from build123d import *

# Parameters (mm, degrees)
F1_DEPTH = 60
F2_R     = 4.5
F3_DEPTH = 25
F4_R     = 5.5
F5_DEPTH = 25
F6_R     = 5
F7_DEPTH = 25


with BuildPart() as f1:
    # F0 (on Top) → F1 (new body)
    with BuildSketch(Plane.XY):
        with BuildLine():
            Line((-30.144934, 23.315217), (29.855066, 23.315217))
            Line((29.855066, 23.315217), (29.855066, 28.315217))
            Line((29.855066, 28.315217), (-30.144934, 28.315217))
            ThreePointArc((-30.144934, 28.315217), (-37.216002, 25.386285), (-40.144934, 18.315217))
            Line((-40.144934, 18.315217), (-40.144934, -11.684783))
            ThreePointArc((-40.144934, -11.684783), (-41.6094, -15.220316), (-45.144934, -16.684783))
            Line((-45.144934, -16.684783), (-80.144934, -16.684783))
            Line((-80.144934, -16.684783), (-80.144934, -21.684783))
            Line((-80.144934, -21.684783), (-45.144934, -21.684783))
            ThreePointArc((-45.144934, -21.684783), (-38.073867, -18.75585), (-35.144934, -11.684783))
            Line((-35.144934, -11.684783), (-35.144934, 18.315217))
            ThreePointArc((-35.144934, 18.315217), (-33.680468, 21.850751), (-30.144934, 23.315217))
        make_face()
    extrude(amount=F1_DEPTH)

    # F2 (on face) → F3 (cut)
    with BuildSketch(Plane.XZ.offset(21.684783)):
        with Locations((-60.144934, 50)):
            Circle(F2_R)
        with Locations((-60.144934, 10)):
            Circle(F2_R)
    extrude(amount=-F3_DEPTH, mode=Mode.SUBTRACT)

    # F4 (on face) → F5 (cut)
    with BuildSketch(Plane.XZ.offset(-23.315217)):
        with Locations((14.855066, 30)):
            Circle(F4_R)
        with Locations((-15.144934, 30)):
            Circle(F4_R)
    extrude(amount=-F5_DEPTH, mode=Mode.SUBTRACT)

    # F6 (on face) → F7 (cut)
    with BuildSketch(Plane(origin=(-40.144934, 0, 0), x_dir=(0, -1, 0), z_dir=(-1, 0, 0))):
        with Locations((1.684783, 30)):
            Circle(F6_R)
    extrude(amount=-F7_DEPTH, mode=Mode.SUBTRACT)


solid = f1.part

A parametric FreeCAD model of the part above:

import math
import FreeCAD as App
import Part
import Sketcher
from FreeCAD import Vector
Q = App.Units.Quantity

doc = App.newDocument("Part")
body = doc.addObject("PartDesign::Body", "Body")

sketch1 = doc.addObject("Sketcher::SketchObject", "Sketch")
body.addObject(sketch1)
sketch1.AttachmentSupport = (doc.XY_Plane, [""])
sketch1.MapMode = "FlatFace"
sketch1.addGeometry([
    Part.LineSegment(Vector(-30.1, 23.3, 0), Vector(29.9, 23.3, 0)),
    Part.LineSegment(Vector(29.9, 23.3, 0), Vector(29.9, 28.3, 0)),
    Part.LineSegment(Vector(29.9, 28.3, 0), Vector(-30.1, 28.3, 0)),
    Part.ArcOfCircle(Part.Circle(Vector(-30.1, 18.3, 0), Vector(0, 0, 1), 10), math.radians(90), math.radians(180)),
    Part.LineSegment(Vector(-40.1, 18.3, 0), Vector(-40.1, -11.7, 0)),
    Part.ArcOfCircle(Part.Circle(Vector(-45.1, -11.7, 0), Vector(0, 0, 1), 5), math.radians(-90), math.radians(0)),
    Part.LineSegment(Vector(-45.1, -16.7, 0), Vector(-80.1, -16.7, 0)),
    Part.LineSegment(Vector(-80.1, -16.7, 0), Vector(-80.1, -21.7, 0)),
    Part.LineSegment(Vector(-80.1, -21.7, 0), Vector(-45.1, -21.7, 0)),
    Part.ArcOfCircle(Part.Circle(Vector(-45.1, -11.7, 0), Vector(0, 0, 1), 10), math.radians(-90), math.radians(0)),
    Part.LineSegment(Vector(-35.1, -11.7, 0), Vector(-35.1, 18.3, 0)),
    Part.ArcOfCircle(Part.Circle(Vector(-30.1, 18.3, 0), Vector(0, 0, 1), 5), math.radians(90), math.radians(180)),
], False)
sketch1.addConstraint([
    Sketcher.Constraint("Coincident", 0, 2, 1, 1),
    Sketcher.Constraint("Coincident", 1, 2, 2, 1),
    Sketcher.Constraint("Tangent", 2, 2, 3, 1),
    Sketcher.Constraint("Tangent", 3, 2, 4, 1),
    Sketcher.Constraint("Tangent", 4, 2, 5, 2),
    Sketcher.Constraint("Tangent", 5, 1, 6, 1),
    Sketcher.Constraint("Coincident", 6, 2, 7, 1),
    Sketcher.Constraint("Coincident", 7, 2, 8, 1),
    Sketcher.Constraint("Tangent", 8, 2, 9, 1),
    Sketcher.Constraint("Tangent", 9, 2, 10, 1),
    Sketcher.Constraint("Tangent", 10, 2, 11, 2),
    Sketcher.Constraint("Tangent", 11, 1, 0, 1),
    Sketcher.Constraint("Horizontal", 0),
    Sketcher.Constraint("Vertical", 1),
    Sketcher.Constraint("Horizontal", 2),
    Sketcher.Constraint("Vertical", 4),
    Sketcher.Constraint("Horizontal", 6),
    Sketcher.Constraint("Vertical", 7),
    Sketcher.Constraint("Horizontal", 8),
    Sketcher.Constraint("Vertical", 10),
    Sketcher.Constraint("Coincident", 9, 3, 5, 3),
    Sketcher.Constraint("Coincident", 11, 3, 3, 3),
    Sketcher.Constraint("Equal", 5, 11),
    Sketcher.Constraint("Radius", 3, Q("9.999999 mm")),
    Sketcher.Constraint("Radius", 5, Q("5.000001 mm")),
    Sketcher.Constraint("DistanceX", 0, 1, 0, 2, Q("60 mm")),
    Sketcher.Constraint("DistanceX", 6, 2, 6, 1, Q("35 mm")),
    Sketcher.Constraint("DistanceY", 4, 2, 4, 1, Q("30 mm")),
    Sketcher.Constraint("DistanceY", 5, 3, -1, 1, Q("11.684782 mm")),
    Sketcher.Constraint("DistanceX", 3, 3, -1, 1, Q("30.144935 mm")),
])
pad1 = doc.addObject("PartDesign::Pad", "Pad")
body.addObject(pad1)
pad1.Profile = sketch1
pad1.Length = 60

sketch2 = doc.addObject("Sketcher::SketchObject", "Sketch001")
body.addObject(sketch2)
sketch2.AttachmentSupport = (doc.XZ_Plane, [""])
sketch2.MapMode = "FlatFace"
sketch2.AttachmentOffset = App.Placement(Vector(0, 0, 21.684783), App.Rotation())
sketch2.addGeometry([
    Part.Circle(Vector(-60.1, 50, 0), Vector(0, 0, 1), 4.5),
    Part.Circle(Vector(-60.1, 10, 0), Vector(0, 0, 1), 4.5),
], False)
sketch2.addConstraint([
    Sketcher.Constraint("Equal", 0, 1),
    Sketcher.Constraint("Vertical", 0, 3, 1, 3),
    Sketcher.Constraint("Diameter", 0, Q("9 mm")),
    Sketcher.Constraint("DistanceY", -1, 1, 0, 3, Q("50 mm")),
    Sketcher.Constraint("DistanceY", -1, 1, 1, 3, Q("10 mm")),
    Sketcher.Constraint("DistanceX", 0, 3, -1, 1, Q("60.144934 mm")),
])
pocket1 = doc.addObject("PartDesign::Pocket", "Pocket")
body.addObject(pocket1)
pocket1.Profile = sketch2
pocket1.Length = 25

sketch3 = doc.addObject("Sketcher::SketchObject", "Sketch002")
body.addObject(sketch3)
sketch3.AttachmentSupport = (doc.XZ_Plane, [""])
sketch3.MapMode = "FlatFace"
sketch3.AttachmentOffset = App.Placement(Vector(0, 0, -23.315217), App.Rotation())
sketch3.addGeometry([
    Part.Circle(Vector(15, 30, 0), Vector(0, 0, 1), 6),
    Part.Circle(Vector(-15, 30, 0), Vector(0, 0, 1), 6),
], False)
sketch3.addConstraint([
    Sketcher.Constraint("Equal", 0, 1),
    Sketcher.Constraint("Horizontal", 0, 3, 1, 3),
    Sketcher.Constraint("Diameter", 0, Q("11 mm")),
    Sketcher.Constraint("DistanceY", -1, 1, 0, 3, Q("30 mm")),
    Sketcher.Constraint("DistanceX", 1, 3, 0, 3, Q("30 mm")),
    Sketcher.Constraint("DistanceX", -1, 1, 0, 3, Q("14.855066 mm")),
])
pocket2 = doc.addObject("PartDesign::Pocket", "Pocket001")
body.addObject(pocket2)
pocket2.Profile = sketch3
pocket2.Length = 25

sketch4 = doc.addObject("Sketcher::SketchObject", "Sketch003")
body.addObject(sketch4)
sketch4.AttachmentSupport = (doc.YZ_Plane, [""])
sketch4.MapMode = "FlatFace"
sketch4.AttachmentOffset = App.Placement(Vector(0, 0, -40.144934), App.Rotation())
sketch4.addGeometry(Part.Circle(Vector(-2, 30, 0), Vector(0, 0, 1), 5), False)
sketch4.addConstraint([
    Sketcher.Constraint("Diameter", 0, Q("10 mm")),
    Sketcher.Constraint("DistanceY", -1, 1, 0, 3, Q("30 mm")),
    Sketcher.Constraint("DistanceX", 0, 3, -1, 1, Q("1.684783 mm")),
])
pocket3 = doc.addObject("PartDesign::Pocket", "Pocket002")
body.addObject(pocket3)
pocket3.Profile = sketch4
pocket3.Length = 25
pocket3.Reversed = True

doc.recompute()
